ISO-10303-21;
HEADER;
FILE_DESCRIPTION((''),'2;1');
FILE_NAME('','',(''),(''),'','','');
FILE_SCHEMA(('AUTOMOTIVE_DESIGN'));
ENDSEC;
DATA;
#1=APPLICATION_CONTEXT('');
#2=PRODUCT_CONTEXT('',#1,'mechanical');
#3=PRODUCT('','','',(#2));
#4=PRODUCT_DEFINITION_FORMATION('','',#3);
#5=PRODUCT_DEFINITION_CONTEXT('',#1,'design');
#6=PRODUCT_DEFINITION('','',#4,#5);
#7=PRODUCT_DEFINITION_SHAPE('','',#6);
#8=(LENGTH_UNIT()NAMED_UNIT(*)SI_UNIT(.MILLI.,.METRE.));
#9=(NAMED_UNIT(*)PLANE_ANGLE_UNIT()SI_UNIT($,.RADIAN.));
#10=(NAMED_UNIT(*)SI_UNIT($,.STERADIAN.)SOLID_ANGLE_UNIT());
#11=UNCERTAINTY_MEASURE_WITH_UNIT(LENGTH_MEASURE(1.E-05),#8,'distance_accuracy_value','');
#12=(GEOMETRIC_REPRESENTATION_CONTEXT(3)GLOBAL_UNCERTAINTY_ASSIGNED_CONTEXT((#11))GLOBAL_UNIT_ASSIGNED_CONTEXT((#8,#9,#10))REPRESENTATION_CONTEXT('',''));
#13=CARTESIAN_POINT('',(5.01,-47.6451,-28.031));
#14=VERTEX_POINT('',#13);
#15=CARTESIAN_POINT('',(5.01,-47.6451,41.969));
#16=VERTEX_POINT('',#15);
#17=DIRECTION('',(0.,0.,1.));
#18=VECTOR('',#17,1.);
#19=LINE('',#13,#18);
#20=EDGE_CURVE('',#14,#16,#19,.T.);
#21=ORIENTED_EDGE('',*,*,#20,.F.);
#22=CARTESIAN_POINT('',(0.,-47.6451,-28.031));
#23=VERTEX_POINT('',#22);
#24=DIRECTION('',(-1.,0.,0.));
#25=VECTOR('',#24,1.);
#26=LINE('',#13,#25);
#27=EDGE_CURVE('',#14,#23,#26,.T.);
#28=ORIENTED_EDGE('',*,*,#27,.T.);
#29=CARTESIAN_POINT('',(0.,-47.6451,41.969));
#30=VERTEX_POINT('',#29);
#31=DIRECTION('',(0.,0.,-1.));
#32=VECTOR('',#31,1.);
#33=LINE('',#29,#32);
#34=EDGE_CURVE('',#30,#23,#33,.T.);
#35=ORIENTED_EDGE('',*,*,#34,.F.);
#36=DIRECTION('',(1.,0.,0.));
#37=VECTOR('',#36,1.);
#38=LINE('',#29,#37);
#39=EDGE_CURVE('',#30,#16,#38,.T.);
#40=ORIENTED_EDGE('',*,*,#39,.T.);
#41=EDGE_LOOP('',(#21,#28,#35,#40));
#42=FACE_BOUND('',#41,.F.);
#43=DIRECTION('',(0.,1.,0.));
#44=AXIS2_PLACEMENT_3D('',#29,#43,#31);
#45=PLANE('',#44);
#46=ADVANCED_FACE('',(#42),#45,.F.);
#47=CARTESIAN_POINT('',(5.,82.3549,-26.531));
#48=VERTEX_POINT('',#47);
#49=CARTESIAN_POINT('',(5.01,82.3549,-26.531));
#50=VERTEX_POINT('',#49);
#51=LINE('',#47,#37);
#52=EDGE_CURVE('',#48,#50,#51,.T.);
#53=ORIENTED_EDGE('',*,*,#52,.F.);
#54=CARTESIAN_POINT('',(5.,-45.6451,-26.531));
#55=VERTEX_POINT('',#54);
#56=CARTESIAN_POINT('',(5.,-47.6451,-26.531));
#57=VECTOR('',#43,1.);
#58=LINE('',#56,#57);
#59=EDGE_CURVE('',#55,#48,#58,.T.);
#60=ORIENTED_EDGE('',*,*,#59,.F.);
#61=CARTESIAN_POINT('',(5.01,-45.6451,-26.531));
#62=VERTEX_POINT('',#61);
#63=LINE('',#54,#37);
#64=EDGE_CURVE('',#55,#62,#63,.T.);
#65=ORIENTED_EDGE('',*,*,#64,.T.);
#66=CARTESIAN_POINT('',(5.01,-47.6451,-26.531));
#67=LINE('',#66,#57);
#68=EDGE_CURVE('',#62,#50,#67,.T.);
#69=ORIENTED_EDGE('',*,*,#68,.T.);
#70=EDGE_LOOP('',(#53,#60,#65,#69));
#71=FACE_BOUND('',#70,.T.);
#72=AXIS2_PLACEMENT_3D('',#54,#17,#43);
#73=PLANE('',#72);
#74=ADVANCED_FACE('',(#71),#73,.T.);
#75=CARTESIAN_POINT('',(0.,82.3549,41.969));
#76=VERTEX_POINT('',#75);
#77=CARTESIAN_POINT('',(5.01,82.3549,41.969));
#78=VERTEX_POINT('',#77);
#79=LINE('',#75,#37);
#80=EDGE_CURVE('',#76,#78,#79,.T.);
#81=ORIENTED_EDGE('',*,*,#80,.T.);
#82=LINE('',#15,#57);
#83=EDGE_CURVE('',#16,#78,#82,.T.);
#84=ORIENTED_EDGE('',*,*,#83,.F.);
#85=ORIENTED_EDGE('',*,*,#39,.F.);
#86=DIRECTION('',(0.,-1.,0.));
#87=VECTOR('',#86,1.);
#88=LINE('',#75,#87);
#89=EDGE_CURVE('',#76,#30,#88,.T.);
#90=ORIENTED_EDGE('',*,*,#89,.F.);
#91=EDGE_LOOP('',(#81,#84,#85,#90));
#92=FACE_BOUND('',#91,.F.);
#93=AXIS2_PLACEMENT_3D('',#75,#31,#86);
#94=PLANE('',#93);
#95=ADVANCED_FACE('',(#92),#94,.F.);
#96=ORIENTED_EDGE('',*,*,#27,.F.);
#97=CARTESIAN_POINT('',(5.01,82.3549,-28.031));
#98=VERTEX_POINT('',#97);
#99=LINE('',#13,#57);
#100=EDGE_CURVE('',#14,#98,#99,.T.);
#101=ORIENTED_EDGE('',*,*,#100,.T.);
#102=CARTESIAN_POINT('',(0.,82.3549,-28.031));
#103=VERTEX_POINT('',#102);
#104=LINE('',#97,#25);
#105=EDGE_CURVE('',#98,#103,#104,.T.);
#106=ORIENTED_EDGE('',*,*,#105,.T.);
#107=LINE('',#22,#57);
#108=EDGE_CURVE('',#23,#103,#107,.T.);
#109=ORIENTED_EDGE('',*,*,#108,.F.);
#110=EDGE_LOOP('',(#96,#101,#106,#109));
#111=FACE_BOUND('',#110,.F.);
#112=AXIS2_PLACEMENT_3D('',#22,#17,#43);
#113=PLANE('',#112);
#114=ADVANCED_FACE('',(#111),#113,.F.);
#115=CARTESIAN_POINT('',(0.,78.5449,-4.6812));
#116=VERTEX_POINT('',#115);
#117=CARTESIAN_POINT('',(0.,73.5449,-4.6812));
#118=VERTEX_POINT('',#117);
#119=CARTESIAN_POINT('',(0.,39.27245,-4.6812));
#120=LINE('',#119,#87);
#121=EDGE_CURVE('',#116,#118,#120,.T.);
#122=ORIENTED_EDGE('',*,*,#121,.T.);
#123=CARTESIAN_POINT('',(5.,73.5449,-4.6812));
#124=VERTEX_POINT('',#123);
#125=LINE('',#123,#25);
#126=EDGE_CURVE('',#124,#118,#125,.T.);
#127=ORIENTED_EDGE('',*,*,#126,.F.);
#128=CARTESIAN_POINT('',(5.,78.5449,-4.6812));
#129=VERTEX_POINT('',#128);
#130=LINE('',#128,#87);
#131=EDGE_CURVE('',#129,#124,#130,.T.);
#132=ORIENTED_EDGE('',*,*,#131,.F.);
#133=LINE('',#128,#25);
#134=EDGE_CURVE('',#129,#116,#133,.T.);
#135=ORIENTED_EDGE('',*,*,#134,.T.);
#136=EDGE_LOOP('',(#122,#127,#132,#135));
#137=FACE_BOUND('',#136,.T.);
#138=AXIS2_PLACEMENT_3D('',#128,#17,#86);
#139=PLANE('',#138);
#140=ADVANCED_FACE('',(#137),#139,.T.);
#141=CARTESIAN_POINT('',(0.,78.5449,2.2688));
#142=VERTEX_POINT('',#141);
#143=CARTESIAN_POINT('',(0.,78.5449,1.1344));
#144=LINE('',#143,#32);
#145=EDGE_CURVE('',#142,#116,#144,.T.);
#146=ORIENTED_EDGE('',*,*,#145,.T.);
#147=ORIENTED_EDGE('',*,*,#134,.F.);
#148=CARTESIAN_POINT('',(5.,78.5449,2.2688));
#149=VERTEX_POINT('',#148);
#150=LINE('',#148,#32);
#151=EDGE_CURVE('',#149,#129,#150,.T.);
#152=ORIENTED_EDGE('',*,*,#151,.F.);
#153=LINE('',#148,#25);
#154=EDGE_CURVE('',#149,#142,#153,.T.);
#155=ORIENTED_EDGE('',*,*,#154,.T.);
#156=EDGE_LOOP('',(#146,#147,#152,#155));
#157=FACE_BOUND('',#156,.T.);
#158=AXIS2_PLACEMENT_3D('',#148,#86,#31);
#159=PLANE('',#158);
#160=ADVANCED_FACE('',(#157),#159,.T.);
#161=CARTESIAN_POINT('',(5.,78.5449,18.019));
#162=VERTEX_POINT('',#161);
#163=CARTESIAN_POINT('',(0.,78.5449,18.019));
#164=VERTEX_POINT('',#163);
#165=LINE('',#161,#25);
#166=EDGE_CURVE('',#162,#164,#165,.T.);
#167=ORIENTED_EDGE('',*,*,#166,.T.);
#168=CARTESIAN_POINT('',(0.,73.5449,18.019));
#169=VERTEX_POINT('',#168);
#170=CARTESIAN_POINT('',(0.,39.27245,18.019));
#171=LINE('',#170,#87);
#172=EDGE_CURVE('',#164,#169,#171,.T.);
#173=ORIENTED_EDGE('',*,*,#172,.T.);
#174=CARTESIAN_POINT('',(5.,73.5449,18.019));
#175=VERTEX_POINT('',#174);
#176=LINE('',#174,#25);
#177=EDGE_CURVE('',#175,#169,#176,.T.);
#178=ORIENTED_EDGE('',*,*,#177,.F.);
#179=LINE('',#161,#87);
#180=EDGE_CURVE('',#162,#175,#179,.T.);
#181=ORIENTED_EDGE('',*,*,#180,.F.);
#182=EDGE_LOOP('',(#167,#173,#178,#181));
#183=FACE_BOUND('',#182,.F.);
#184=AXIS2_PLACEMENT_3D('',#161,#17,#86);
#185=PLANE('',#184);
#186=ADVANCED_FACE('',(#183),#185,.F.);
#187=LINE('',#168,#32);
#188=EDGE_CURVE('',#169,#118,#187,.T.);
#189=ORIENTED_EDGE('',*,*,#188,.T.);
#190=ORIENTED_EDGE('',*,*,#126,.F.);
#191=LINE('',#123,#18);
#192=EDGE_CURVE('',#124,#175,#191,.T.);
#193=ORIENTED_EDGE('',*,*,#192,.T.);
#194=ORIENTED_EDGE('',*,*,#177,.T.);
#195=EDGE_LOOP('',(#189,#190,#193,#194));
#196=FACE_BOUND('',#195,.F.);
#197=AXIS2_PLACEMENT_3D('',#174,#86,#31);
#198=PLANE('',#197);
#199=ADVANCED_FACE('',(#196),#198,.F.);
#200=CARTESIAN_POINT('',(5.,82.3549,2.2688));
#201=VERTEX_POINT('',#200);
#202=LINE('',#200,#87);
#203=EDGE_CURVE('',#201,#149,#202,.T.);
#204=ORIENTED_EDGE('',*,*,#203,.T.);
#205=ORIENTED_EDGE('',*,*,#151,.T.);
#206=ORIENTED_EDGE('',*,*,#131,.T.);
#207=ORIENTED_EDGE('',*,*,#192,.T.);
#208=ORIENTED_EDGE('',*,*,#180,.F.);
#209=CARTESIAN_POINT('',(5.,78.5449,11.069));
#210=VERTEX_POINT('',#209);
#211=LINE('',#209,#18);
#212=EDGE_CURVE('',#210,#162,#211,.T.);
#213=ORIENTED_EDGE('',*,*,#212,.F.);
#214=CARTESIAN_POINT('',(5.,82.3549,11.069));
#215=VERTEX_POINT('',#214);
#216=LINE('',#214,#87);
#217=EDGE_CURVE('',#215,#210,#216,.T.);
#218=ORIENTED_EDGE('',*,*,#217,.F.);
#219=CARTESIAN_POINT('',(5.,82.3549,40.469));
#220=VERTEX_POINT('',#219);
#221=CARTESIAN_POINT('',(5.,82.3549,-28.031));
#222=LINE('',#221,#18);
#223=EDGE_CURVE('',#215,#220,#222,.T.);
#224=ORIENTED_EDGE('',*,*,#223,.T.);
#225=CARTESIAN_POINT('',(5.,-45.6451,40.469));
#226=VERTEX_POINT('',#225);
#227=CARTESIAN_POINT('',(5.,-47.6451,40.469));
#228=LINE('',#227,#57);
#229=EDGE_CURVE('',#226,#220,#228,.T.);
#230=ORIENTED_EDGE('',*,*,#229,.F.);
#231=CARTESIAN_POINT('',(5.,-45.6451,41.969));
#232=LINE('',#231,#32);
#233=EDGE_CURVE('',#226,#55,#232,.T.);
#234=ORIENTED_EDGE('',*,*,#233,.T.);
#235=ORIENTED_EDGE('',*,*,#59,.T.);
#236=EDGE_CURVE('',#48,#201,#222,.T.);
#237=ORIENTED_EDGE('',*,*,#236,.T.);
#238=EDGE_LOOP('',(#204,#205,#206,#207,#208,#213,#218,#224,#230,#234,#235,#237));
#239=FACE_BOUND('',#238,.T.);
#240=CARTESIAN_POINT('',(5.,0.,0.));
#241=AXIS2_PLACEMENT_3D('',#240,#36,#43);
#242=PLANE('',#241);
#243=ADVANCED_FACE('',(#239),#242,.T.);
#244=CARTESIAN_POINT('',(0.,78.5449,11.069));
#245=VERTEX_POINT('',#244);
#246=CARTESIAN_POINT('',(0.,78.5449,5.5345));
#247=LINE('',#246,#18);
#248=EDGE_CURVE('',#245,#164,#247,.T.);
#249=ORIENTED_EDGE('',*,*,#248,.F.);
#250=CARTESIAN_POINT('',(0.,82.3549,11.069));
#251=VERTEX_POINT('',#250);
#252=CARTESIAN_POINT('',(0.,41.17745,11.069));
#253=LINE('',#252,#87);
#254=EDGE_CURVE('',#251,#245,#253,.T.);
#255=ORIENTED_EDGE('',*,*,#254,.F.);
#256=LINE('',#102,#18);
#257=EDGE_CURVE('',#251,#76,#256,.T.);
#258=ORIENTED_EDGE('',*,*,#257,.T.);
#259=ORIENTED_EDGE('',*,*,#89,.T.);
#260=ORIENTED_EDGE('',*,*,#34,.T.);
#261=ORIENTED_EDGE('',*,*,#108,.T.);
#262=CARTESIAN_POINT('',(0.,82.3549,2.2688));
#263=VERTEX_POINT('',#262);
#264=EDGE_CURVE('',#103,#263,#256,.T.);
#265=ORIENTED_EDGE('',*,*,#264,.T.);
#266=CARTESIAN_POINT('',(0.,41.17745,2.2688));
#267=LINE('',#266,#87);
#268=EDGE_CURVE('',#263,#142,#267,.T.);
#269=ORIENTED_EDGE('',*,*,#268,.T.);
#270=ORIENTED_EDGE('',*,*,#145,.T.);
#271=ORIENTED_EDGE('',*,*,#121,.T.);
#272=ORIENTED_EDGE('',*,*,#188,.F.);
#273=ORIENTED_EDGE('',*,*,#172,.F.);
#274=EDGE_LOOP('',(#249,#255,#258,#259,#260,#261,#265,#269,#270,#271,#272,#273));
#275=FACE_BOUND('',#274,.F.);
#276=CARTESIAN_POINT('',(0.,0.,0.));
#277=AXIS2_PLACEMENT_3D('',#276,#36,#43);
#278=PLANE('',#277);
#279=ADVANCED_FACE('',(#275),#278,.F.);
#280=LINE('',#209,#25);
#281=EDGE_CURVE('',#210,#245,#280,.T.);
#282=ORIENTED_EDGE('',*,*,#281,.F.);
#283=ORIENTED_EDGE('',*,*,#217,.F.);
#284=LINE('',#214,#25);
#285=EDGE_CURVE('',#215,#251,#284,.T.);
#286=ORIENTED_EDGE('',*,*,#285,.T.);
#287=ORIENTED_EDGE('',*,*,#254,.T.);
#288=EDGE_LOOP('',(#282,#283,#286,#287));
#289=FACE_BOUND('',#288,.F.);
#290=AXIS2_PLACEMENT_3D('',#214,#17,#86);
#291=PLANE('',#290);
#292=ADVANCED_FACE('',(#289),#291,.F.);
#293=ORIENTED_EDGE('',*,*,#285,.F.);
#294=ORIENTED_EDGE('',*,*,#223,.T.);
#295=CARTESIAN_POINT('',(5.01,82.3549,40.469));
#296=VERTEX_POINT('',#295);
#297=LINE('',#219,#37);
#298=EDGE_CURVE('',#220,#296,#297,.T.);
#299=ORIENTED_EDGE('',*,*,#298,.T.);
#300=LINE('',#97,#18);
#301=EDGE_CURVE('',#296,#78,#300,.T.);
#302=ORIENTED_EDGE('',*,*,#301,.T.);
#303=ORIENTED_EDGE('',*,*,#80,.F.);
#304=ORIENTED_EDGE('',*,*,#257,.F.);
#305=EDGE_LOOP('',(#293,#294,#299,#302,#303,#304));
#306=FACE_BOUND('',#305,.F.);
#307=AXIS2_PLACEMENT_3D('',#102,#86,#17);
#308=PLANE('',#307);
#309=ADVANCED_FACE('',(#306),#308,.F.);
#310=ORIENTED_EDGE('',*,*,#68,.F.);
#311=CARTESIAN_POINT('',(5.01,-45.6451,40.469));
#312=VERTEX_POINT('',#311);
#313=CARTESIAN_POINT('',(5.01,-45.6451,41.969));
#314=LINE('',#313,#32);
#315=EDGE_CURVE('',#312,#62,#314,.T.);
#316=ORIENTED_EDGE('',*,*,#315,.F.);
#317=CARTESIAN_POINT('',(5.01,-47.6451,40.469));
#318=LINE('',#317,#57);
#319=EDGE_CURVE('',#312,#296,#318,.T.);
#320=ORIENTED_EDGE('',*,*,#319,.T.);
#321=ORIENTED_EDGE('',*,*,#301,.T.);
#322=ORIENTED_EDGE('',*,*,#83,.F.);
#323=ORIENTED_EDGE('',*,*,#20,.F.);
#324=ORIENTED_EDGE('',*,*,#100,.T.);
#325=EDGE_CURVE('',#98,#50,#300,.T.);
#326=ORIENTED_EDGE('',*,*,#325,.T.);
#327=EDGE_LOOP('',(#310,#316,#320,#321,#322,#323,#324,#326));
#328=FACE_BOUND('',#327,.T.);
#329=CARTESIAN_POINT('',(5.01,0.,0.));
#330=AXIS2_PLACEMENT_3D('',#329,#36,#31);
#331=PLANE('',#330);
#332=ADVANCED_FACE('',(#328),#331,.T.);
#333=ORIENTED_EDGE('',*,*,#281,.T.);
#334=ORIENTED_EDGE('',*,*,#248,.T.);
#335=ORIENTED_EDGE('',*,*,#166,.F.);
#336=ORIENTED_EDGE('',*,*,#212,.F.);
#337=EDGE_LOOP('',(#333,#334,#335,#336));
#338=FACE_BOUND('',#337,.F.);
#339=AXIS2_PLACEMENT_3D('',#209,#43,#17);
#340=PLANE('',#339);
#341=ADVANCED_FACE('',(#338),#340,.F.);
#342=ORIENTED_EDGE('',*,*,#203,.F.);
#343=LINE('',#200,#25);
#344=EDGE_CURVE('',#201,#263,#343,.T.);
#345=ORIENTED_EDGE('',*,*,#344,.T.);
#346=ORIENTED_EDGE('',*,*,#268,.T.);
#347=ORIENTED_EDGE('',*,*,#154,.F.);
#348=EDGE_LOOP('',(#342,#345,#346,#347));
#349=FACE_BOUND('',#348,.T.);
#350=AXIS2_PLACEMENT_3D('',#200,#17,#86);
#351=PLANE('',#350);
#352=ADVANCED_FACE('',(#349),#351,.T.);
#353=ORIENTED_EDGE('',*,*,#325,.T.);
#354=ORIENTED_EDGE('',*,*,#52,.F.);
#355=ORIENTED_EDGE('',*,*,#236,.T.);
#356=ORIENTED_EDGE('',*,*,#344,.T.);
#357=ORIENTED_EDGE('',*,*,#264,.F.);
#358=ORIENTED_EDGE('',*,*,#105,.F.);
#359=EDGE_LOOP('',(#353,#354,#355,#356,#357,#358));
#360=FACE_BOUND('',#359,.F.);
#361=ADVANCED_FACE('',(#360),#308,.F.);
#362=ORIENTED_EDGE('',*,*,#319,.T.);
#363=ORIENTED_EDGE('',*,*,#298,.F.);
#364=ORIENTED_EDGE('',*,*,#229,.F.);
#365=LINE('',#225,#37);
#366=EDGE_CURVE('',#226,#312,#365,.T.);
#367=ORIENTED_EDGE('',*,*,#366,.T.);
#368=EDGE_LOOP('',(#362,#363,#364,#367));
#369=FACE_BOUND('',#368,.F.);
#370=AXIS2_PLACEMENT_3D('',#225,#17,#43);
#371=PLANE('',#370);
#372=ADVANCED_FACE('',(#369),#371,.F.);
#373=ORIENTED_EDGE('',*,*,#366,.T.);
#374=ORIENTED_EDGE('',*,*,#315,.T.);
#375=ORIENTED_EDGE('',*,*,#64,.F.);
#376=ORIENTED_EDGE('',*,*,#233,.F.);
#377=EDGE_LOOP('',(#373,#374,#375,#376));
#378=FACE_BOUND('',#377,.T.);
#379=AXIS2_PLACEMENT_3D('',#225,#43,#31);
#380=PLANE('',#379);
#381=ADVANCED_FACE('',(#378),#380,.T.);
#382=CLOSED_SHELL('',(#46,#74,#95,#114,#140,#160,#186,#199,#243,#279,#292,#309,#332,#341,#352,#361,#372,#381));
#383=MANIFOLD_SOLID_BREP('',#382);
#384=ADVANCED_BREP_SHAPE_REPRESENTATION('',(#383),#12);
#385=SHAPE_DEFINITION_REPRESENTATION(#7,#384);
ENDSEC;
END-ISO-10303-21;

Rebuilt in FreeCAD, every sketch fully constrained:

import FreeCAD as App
import Part
import Sketcher
from FreeCAD import Vector


def add_polygon(sketch, points):
    """Adds a closed chain of lines whose ends are joined by coincident constraints."""
    first, n = sketch.GeometryCount, len(points)
    for a, b in zip(points, points[1:] + points[:1]):
        sketch.addGeometry(Part.LineSegment(App.Vector(*a, 0), App.Vector(*b, 0)), False)
    for i in range(n):
        sketch.addConstraint(Sketcher.Constraint("Coincident", first + i, 2, first + (i + 1) % n, 1))

doc = App.newDocument("Part")
body = doc.addObject("PartDesign::Body", "Body")

# Sketch on YZ plane
sketch1 = doc.addObject("Sketcher::SketchObject", "Sketch")
body.addObject(sketch1)
sketch1.AttachmentSupport = (doc.YZ_Plane, [""])
sketch1.MapMode = "FlatFace"
add_polygon(sketch1, [(82, -28), (82, 42), (-48, 42), (-48, -28)])  # lines 0-3
sketch1.addConstraint(Sketcher.Constraint("Vertical", 0))
sketch1.addConstraint(Sketcher.Constraint("Horizontal", 1))
sketch1.addConstraint(Sketcher.Constraint("Vertical", 2))
sketch1.addConstraint(Sketcher.Constraint("Horizontal", 3))
sketch1.addConstraint(Sketcher.Constraint("DistanceX", 1, 2, 1, 1, 130.0))
sketch1.addConstraint(Sketcher.Constraint("DistanceY", 0, 1, 0, 2, 70.0))
sketch1.addConstraint(Sketcher.Constraint("DistanceX", -1, 1, 0, 2, 82.355))
sketch1.addConstraint(Sketcher.Constraint("DistanceY", -1, 1, 0, 2, 41.969))
pad1 = doc.addObject("PartDesign::Pad", "Pad")
body.addObject(pad1)
pad1.Profile = sketch1
pad1.Length = 5

# Sketch on YZ plane
sketch2 = doc.addObject("Sketcher::SketchObject", "Sketch001")
body.addObject(sketch2)
sketch2.AttachmentSupport = (doc.YZ_Plane, [""])
sketch2.MapMode = "FlatFace"
sketch2.AttachmentOffset = App.Placement(Vector(0, 0, 5), App.Rotation())
add_polygon(sketch2, [(-47.6, 42), (-47.6, -28), (82.4, -28), (82.4, -26.5), (-45.6, -26.5), (-45.6, 40.5), (82.4, 40.5), (82.4, 42)])  # lines 0-7
sketch2.addConstraint(Sketcher.Constraint("Vertical", 0))
sketch2.addConstraint(Sketcher.Constraint("Horizontal", 1))
sketch2.addConstraint(Sketcher.Constraint("Vertical", 2))
sketch2.addConstraint(Sketcher.Constraint("Horizontal", 3))
sketch2.addConstraint(Sketcher.Constraint("Vertical", 4))
sketch2.addConstraint(Sketcher.Constraint("Horizontal", 5))
sketch2.addConstraint(Sketcher.Constraint("Vertical", 6))
sketch2.addConstraint(Sketcher.Constraint("Horizontal", 7))
sketch2.addConstraint(Sketcher.Constraint("Vertical", 2, 2, 5, 2))
sketch2.addConstraint(Sketcher.Constraint("Equal", 2, 6))
sketch2.addConstraint(Sketcher.Constraint("DistanceY", 2, 1, 2, 2, 1.5))
sketch2.addConstraint(Sketcher.Constraint("DistanceX", 0, 2, 3, 2, 2.0))
sketch2.addConstraint(Sketcher.Constraint("DistanceX", 1, 1, 1, 2, 130.0))
sketch2.addConstraint(Sketcher.Constraint("DistanceY", 0, 2, 0, 1, 70.0))
sketch2.addConstraint(Sketcher.Constraint("DistanceX", 0, 2, -1, 1, 47.645))
sketch2.addConstraint(Sketcher.Constraint("DistanceY", 0, 2, -1, 1, 28.031))
pad2 = doc.addObject("PartDesign::Pad", "Pad001")
body.addObject(pad2)
pad2.Profile = sketch2
pad2.Length = 0.01

# Sketch on YZ plane
sketch3 = doc.addObject("Sketcher::SketchObject", "Sketch002")
body.addObject(sketch3)
sketch3.AttachmentSupport = (doc.YZ_Plane, [""])
sketch3.MapMode = "FlatFace"
sketch3.AttachmentOffset = App.Placement(Vector(0, 0, 5), App.Rotation())
add_polygon(sketch3, [(82.4, 2.3), (82.4, 11.1), (78.5, 11.1), (78.5, 18), (73.5, 18), (73.5, -4.7), (78.5, -4.7), (78.5, 2.3)])  # lines 0-7
sketch3.addConstraint(Sketcher.Constraint("Vertical", 0))
sketch3.addConstraint(Sketcher.Constraint("Horizontal", 1))
sketch3.addConstraint(Sketcher.Constraint("Vertical", 2))
sketch3.addConstraint(Sketcher.Constraint("Horizontal", 3))
sketch3.addConstraint(Sketcher.Constraint("Vertical", 4))
sketch3.addConstraint(Sketcher.Constraint("Horizontal", 5))
sketch3.addConstraint(Sketcher.Constraint("Vertical", 6))
sketch3.addConstraint(Sketcher.Constraint("Horizontal", 7))
sketch3.addConstraint(Sketcher.Constraint("Vertical", 2, 2, 5, 2))
sketch3.addConstraint(Sketcher.Constraint("Equal", 2, 6))
sketch3.addConstraint(Sketcher.Constraint("DistanceX", 3, 2, 3, 1, 5.0))
sketch3.addConstraint(Sketcher.Constraint("DistanceX", 1, 2, 1, 1, 3.81))
sketch3.addConstraint(Sketcher.Constraint("DistanceY", 2, 1, 2, 2, 6.95))
sketch3.addConstraint(Sketcher.Constraint("DistanceY", 0, 1, 0, 2, 8.8002))
sketch3.addConstraint(Sketcher.Constraint("DistanceX", -1, 1, 0, 2, 82.355))
sketch3.addConstraint(Sketcher.Constraint("DistanceY", -1, 1, 0, 2, 11.069))
pocket1 = doc.addObject("PartDesign::Pocket", "Pocket")
body.addObject(pocket1)
pocket1.Profile = sketch3
pocket1.Length = 7.9375

doc.recompute()
